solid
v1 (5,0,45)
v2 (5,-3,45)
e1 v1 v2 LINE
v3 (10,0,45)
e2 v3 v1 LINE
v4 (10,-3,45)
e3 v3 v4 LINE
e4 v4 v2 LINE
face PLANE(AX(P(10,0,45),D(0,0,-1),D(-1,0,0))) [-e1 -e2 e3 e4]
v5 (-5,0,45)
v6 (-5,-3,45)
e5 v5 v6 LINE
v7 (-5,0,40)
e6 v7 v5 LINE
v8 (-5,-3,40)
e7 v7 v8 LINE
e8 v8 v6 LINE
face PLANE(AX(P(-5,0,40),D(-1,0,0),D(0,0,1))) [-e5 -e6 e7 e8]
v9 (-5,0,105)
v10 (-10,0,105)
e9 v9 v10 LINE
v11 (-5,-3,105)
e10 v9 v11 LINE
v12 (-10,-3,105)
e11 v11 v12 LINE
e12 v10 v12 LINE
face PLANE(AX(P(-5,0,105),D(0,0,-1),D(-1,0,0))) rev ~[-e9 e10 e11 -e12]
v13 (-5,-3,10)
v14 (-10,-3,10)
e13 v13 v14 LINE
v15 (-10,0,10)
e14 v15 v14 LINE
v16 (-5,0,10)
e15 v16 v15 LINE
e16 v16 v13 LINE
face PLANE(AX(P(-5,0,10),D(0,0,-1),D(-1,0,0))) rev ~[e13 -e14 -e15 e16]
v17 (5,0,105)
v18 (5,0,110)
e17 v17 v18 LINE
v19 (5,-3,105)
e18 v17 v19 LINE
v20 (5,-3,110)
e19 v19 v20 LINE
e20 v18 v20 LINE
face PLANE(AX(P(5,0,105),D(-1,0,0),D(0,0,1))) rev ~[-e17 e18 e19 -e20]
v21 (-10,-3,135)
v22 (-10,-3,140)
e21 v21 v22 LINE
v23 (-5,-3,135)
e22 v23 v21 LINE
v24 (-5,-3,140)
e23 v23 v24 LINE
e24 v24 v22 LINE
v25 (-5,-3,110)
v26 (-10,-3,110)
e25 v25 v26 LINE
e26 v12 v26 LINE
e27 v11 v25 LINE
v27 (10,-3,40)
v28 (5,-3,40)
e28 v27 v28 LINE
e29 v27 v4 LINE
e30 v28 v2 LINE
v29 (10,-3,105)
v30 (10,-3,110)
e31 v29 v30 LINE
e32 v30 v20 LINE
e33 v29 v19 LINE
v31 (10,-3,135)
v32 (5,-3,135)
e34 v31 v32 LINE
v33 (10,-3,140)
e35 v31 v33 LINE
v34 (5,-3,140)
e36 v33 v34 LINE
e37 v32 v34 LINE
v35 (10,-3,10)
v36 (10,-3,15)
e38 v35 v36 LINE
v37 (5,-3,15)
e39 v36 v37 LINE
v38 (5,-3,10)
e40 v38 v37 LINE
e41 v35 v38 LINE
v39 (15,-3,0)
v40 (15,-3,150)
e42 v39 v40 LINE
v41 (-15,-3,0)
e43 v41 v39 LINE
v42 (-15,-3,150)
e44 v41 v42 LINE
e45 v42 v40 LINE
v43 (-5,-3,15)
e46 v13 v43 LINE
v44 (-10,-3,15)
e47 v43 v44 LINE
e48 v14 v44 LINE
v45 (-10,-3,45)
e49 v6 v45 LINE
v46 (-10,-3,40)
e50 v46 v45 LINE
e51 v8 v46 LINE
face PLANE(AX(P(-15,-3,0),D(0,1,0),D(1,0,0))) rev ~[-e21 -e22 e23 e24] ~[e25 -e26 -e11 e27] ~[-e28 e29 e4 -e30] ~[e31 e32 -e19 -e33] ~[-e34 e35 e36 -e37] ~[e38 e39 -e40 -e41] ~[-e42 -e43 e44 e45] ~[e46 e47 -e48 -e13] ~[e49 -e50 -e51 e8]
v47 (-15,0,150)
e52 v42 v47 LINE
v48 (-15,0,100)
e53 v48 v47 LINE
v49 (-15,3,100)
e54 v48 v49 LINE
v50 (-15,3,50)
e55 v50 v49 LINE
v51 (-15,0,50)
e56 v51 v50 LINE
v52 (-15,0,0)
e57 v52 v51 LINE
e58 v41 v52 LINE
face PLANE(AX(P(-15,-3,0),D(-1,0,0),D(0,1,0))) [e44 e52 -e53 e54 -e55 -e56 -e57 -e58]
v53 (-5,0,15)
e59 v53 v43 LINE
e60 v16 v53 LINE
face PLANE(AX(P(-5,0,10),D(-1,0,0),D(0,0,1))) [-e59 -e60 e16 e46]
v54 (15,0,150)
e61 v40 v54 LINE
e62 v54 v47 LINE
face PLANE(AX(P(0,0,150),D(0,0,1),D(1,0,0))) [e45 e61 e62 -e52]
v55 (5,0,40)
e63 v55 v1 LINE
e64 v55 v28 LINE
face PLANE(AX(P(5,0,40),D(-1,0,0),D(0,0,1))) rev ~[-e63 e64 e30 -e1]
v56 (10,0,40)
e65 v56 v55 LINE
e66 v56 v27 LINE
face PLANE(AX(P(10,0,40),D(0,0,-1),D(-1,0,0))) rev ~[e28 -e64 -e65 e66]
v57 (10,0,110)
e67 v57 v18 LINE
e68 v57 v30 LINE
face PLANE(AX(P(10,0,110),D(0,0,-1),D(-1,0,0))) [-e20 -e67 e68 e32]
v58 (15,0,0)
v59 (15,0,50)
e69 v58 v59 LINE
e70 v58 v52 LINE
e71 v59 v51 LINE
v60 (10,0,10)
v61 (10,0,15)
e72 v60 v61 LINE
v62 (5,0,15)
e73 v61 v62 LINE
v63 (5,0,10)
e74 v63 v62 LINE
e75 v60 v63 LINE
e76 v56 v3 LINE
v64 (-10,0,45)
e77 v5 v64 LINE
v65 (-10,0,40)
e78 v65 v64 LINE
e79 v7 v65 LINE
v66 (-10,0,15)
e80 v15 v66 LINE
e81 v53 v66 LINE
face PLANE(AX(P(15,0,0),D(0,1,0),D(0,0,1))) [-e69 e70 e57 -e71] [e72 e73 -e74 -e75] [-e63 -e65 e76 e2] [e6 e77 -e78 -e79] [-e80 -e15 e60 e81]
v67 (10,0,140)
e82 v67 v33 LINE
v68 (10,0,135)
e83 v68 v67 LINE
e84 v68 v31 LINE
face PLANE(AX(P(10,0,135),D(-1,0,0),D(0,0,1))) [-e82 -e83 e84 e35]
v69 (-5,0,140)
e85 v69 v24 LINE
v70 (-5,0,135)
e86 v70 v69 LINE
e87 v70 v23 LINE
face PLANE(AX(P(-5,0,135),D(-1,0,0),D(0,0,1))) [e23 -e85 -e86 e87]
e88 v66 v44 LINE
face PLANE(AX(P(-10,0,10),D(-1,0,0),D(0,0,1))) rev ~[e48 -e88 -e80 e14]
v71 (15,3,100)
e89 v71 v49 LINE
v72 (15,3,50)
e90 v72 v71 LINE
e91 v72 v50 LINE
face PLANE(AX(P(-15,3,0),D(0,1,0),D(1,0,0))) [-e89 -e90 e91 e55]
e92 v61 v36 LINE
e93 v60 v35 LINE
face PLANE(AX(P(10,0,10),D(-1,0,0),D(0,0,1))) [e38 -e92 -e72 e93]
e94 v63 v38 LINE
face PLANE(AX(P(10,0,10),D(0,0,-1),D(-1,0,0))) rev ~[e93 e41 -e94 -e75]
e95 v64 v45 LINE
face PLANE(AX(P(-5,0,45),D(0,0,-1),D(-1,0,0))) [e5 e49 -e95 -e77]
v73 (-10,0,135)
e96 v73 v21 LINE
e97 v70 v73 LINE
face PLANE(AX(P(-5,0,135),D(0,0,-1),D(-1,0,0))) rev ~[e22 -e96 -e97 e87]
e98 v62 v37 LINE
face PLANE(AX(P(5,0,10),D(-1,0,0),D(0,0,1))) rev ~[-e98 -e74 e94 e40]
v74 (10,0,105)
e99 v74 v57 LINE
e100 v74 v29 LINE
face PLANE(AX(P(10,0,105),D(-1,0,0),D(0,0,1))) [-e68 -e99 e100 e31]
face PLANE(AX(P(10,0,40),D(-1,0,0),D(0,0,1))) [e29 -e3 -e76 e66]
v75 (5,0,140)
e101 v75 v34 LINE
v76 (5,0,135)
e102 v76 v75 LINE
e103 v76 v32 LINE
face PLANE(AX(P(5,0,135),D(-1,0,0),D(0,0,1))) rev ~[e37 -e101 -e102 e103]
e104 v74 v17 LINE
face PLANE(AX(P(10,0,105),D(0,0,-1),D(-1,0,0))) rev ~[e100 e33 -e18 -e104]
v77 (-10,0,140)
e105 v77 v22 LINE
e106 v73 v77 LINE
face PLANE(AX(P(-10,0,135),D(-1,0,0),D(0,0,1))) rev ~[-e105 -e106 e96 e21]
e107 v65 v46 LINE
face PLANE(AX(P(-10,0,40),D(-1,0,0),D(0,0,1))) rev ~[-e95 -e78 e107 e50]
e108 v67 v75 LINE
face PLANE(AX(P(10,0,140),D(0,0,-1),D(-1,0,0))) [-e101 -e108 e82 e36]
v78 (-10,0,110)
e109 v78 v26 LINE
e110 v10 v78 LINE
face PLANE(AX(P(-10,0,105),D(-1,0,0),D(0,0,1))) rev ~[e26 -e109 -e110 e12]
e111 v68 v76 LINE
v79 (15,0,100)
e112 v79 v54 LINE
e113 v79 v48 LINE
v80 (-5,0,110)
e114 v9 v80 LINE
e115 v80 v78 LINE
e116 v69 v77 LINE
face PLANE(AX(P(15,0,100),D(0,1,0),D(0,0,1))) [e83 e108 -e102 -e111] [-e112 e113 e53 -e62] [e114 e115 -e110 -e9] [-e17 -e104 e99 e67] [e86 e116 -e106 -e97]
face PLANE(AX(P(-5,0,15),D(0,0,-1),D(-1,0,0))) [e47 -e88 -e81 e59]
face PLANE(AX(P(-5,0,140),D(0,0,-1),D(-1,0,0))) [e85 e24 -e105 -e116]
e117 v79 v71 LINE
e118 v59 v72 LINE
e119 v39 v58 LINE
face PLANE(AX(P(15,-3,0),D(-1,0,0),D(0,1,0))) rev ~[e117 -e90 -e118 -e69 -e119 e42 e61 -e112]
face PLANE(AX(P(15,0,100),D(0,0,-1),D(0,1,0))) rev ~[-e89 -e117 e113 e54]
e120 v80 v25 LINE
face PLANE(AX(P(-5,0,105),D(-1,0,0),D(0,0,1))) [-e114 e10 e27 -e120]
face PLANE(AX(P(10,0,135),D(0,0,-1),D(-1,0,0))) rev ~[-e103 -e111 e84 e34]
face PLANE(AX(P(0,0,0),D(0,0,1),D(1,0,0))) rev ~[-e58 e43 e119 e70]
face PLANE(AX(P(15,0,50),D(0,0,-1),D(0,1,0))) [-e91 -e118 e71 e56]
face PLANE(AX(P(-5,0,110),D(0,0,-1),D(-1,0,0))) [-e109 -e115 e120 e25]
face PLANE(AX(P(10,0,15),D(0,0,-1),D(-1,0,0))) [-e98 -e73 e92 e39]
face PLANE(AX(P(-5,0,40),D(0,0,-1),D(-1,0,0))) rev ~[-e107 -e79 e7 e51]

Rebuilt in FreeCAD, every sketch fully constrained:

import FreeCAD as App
import Part
import Sketcher
Q = App.Units.Quantity


def add_polygon(sketch, points):
    """Adds a closed chain of lines whose ends are joined by coincident constraints."""
    first, n = sketch.GeometryCount, len(points)
    for a, b in zip(points, points[1:] + points[:1]):
        sketch.addGeometry(Part.LineSegment(App.Vector(*a, 0), App.Vector(*b, 0)), False)
    for i in range(n):
        sketch.addConstraint(Sketcher.Constraint("Coincident", first + i, 2, first + (i + 1) % n, 1))

doc = App.newDocument("Part")
body = doc.addObject("PartDesign::Body", "Body")

# Sketch on XY plane
sketch1 = body.newObject("Sketcher::SketchObject", "Sketch")
sketch1.AttachmentSupport = (doc.getObject("XY_Plane"), [""])
sketch1.MapMode = "FlatFace"
add_polygon(sketch1, [(-15, 3), (-15, -3), (15, -3), (15, 3)])  # lines 0-3
sketch1.addConstraint(Sketcher.Constraint("Vertical", 0))
sketch1.addConstraint(Sketcher.Constraint("Horizontal", 1))
sketch1.addConstraint(Sketcher.Constraint("Vertical", 2))
sketch1.addConstraint(Sketcher.Constraint("Horizontal", 3))
sketch1.addConstraint(Sketcher.Constraint("Symmetric", 0, 2, 2, 2, -1, 1))
sketch1.addConstraint(Sketcher.Constraint("DistanceX", 1, 1, 1, 2, Q("30 mm")))
sketch1.addConstraint(Sketcher.Constraint("DistanceY", 0, 2, 0, 1, Q("6 mm")))
pad1 = body.newObject("PartDesign::Pad", "Pad")
pad1.Profile = sketch1
pad1.Length = 150

# Sketch on YZ plane
sketch2 = body.newObject("Sketcher::SketchObject", "Sketch001")
sketch2.AttachmentSupport = (doc.getObject("YZ_Plane"), [""])
sketch2.MapMode = "FlatFace"
sketch2.AttachmentOffset = App.Placement(App.Vector(0, 0, 15), App.Rotation())
add_polygon(sketch2, [(0, 150), (0, 100), (3, 100), (3, 150)])  # lines 0-3
add_polygon(sketch2, [(0, 50), (0, 0), (3, 0), (3, 50)])  # lines 4-7
sketch2.addConstraint(Sketcher.Constraint("Vertical", 0))
sketch2.addConstraint(Sketcher.Constraint("Horizontal", 1))
sketch2.addConstraint(Sketcher.Constraint("Vertical", 2))
sketch2.addConstraint(Sketcher.Constraint("Horizontal", 3))
sketch2.addConstraint(Sketcher.Constraint("Vertical", 4))
sketch2.addConstraint(Sketcher.Constraint("Horizontal", 5))
sketch2.addConstraint(Sketcher.Constraint("Vertical", 6))
sketch2.addConstraint(Sketcher.Constraint("Horizontal", 7))
sketch2.addConstraint(Sketcher.Constraint("Coincident", 4, 2, -1, 1))
sketch2.addConstraint(Sketcher.Constraint("PointOnObject", 0, 2, -2))
sketch2.addConstraint(Sketcher.Constraint("Vertical", 2, 2, 5, 2))
sketch2.addConstraint(Sketcher.Constraint("Equal", 2, 4))
sketch2.addConstraint(Sketcher.Constraint("DistanceX", 1, 1, 1, 2, Q("3 mm")))
sketch2.addConstraint(Sketcher.Constraint("DistanceY", 0, 2, 0, 1, Q("50 mm")))
sketch2.addConstraint(Sketcher.Constraint("DistanceY", -1, 1, 0, 2, Q("100 mm")))
pocket1 = body.newObject("PartDesign::Pocket", "Pocket")
pocket1.Profile = sketch2
pocket1.Type = "ThroughAll"

# Sketch on XZ plane
sketch3 = body.newObject("Sketcher::SketchObject", "Sketch002")
sketch3.AttachmentSupport = (doc.getObject("XZ_Plane"), [""])
sketch3.MapMode = "FlatFace"
add_polygon(sketch3, [(-5, 15), (-5, 10), (-10, 10), (-10, 15)])  # lines 0-3
add_polygon(sketch3, [(10, 15), (10, 10), (5, 10), (5, 15)])  # lines 4-7
add_polygon(sketch3, [(10, 45), (10, 40), (5, 40), (5, 45)])  # lines 8-11
add_polygon(sketch3, [(-5, 45), (-5, 40), (-10, 40), (-10, 45)])  # lines 12-15
add_polygon(sketch3, [(-5, 110), (-5, 105), (-10, 105), (-10, 110)])  # lines 16-19
add_polygon(sketch3, [(10, 110), (10, 105), (5, 105), (5, 110)])  # lines 20-23
add_polygon(sketch3, [(10, 140), (10, 135), (5, 135), (5, 140)])  # lines 24-27
add_polygon(sketch3, [(-5, 140), (-5, 135), (-10, 135), (-10, 140)])  # lines 28-31
sketch3.addConstraint(Sketcher.Constraint("Vertical", 0))
sketch3.addConstraint(Sketcher.Constraint("Horizontal", 1))
sketch3.addConstraint(Sketcher.Constraint("Vertical", 2))
sketch3.addConstraint(Sketcher.Constraint("Horizontal", 3))
sketch3.addConstraint(Sketcher.Constraint("Vertical", 4))
sketch3.addConstraint(Sketcher.Constraint("Horizontal", 5))
sketch3.addConstraint(Sketcher.Constraint("Vertical", 6))
sketch3.addConstraint(Sketcher.Constraint("Horizontal", 7))
sketch3.addConstraint(Sketcher.Constraint("Vertical", 8))
sketch3.addConstraint(Sketcher.Constraint("Horizontal", 9))
sketch3.addConstraint(Sketcher.Constraint("Vertical", 10))
sketch3.addConstraint(Sketcher.Constraint("Horizontal", 11))
sketch3.addConstraint(Sketcher.Constraint("Vertical", 12))
sketch3.addConstraint(Sketcher.Constraint("Horizontal", 13))
sketch3.addConstraint(Sketcher.Constraint("Vertical", 14))
sketch3.addConstraint(Sketcher.Constraint("Horizontal", 15))
sketch3.addConstraint(Sketcher.Constraint("Vertical", 16))
sketch3.addConstraint(Sketcher.Constraint("Horizontal", 17))
sketch3.addConstraint(Sketcher.Constraint("Vertical", 18))
sketch3.addConstraint(Sketcher.Constraint("Horizontal", 19))
sketch3.addConstraint(Sketcher.Constraint("Vertical", 20))
sketch3.addConstraint(Sketcher.Constraint("Horizontal", 21))
sketch3.addConstraint(Sketcher.Constraint("Vertical", 22))
sketch3.addConstraint(Sketcher.Constraint("Horizontal", 23))
sketch3.addConstraint(Sketcher.Constraint("Vertical", 24))
sketch3.addConstraint(Sketcher.Constraint("Horizontal", 25))
sketch3.addConstraint(Sketcher.Constraint("Vertical", 26))
sketch3.addConstraint(Sketcher.Constraint("Horizontal", 27))
sketch3.addConstraint(Sketcher.Constraint("Vertical", 28))
sketch3.addConstraint(Sketcher.Constraint("Horizontal", 29))
sketch3.addConstraint(Sketcher.Constraint("Vertical", 30))
sketch3.addConstraint(Sketcher.Constraint("Horizontal", 31))
sketch3.addConstraint(Sketcher.Constraint("Symmetric", 1, 2, 4, 2, -2))
sketch3.addConstraint(Sketcher.Constraint("Symmetric", 3, 2, 6, 2, -2))
sketch3.addConstraint(Sketcher.Constraint("Symmetric", 9, 2, 12, 2, -2))
sketch3.addConstraint(Sketcher.Constraint("Symmetric", 11, 2, 14, 2, -2))
sketch3.addConstraint(Sketcher.Constraint("Symmetric", 17, 2, 20, 2, -2))
sketch3.addConstraint(Sketcher.Constraint("Symmetric", 19, 2, 22, 2, -2))
sketch3.addConstraint(Sketcher.Constraint("Symmetric", 25, 2, 28, 2, -2))
sketch3.addConstraint(Sketcher.Constraint("Symmetric", 27, 2, 30, 2, -2))
sketch3.addConstraint(Sketcher.Constraint("Vertical", 7, 2, 8, 2))
sketch3.addConstraint(Sketcher.Constraint("Vertical", 6, 2, 9, 2))
sketch3.addConstraint(Sketcher.Constraint("Vertical", 15, 2, 16, 2))
sketch3.addConstraint(Sketcher.Constraint("Vertical", 14, 2, 17, 2))
sketch3.addConstraint(Sketcher.Constraint("Vertical", 23, 2, 24, 2))
sketch3.addConstraint(Sketcher.Constraint("Vertical", 22, 2, 25, 2))
sketch3.addConstraint(Sketcher.Constraint("Equal", 31, 0))
sketch3.addConstraint(Sketcher.Constraint("Equal", 6, 8))
sketch3.addConstraint(Sketcher.Constraint("Equal", 14, 16))
sketch3.addConstraint(Sketcher.Constraint("Equal", 22, 24))
sketch3.addConstraint(Sketcher.Constraint("DistanceX", 1, 2, 1, 1, Q("5 mm")))
sketch3.addConstraint(Sketcher.Constraint("DistanceX", 0, 2, -1, 1, Q("5 mm")))
sketch3.addConstraint(Sketcher.Constraint("DistanceY", -1, 1, 0, 2, Q("10 mm")))
sketch3.addConstraint(Sketcher.Constraint("DistanceY", -1, 1, 8, 2, Q("40 mm")))
sketch3.addConstraint(Sketcher.Constraint("DistanceY", -1, 1, 16, 2, Q("105 mm")))
sketch3.addConstraint(Sketcher.Constraint("DistanceY", -1, 1, 24, 2, Q("135 mm")))
pocket2 = body.newObject("PartDesign::Pocket", "Pocket001")
pocket2.Profile = sketch3
pocket2.Type = "ThroughAll"
pocket2.Reversed = True

doc.recompute()
